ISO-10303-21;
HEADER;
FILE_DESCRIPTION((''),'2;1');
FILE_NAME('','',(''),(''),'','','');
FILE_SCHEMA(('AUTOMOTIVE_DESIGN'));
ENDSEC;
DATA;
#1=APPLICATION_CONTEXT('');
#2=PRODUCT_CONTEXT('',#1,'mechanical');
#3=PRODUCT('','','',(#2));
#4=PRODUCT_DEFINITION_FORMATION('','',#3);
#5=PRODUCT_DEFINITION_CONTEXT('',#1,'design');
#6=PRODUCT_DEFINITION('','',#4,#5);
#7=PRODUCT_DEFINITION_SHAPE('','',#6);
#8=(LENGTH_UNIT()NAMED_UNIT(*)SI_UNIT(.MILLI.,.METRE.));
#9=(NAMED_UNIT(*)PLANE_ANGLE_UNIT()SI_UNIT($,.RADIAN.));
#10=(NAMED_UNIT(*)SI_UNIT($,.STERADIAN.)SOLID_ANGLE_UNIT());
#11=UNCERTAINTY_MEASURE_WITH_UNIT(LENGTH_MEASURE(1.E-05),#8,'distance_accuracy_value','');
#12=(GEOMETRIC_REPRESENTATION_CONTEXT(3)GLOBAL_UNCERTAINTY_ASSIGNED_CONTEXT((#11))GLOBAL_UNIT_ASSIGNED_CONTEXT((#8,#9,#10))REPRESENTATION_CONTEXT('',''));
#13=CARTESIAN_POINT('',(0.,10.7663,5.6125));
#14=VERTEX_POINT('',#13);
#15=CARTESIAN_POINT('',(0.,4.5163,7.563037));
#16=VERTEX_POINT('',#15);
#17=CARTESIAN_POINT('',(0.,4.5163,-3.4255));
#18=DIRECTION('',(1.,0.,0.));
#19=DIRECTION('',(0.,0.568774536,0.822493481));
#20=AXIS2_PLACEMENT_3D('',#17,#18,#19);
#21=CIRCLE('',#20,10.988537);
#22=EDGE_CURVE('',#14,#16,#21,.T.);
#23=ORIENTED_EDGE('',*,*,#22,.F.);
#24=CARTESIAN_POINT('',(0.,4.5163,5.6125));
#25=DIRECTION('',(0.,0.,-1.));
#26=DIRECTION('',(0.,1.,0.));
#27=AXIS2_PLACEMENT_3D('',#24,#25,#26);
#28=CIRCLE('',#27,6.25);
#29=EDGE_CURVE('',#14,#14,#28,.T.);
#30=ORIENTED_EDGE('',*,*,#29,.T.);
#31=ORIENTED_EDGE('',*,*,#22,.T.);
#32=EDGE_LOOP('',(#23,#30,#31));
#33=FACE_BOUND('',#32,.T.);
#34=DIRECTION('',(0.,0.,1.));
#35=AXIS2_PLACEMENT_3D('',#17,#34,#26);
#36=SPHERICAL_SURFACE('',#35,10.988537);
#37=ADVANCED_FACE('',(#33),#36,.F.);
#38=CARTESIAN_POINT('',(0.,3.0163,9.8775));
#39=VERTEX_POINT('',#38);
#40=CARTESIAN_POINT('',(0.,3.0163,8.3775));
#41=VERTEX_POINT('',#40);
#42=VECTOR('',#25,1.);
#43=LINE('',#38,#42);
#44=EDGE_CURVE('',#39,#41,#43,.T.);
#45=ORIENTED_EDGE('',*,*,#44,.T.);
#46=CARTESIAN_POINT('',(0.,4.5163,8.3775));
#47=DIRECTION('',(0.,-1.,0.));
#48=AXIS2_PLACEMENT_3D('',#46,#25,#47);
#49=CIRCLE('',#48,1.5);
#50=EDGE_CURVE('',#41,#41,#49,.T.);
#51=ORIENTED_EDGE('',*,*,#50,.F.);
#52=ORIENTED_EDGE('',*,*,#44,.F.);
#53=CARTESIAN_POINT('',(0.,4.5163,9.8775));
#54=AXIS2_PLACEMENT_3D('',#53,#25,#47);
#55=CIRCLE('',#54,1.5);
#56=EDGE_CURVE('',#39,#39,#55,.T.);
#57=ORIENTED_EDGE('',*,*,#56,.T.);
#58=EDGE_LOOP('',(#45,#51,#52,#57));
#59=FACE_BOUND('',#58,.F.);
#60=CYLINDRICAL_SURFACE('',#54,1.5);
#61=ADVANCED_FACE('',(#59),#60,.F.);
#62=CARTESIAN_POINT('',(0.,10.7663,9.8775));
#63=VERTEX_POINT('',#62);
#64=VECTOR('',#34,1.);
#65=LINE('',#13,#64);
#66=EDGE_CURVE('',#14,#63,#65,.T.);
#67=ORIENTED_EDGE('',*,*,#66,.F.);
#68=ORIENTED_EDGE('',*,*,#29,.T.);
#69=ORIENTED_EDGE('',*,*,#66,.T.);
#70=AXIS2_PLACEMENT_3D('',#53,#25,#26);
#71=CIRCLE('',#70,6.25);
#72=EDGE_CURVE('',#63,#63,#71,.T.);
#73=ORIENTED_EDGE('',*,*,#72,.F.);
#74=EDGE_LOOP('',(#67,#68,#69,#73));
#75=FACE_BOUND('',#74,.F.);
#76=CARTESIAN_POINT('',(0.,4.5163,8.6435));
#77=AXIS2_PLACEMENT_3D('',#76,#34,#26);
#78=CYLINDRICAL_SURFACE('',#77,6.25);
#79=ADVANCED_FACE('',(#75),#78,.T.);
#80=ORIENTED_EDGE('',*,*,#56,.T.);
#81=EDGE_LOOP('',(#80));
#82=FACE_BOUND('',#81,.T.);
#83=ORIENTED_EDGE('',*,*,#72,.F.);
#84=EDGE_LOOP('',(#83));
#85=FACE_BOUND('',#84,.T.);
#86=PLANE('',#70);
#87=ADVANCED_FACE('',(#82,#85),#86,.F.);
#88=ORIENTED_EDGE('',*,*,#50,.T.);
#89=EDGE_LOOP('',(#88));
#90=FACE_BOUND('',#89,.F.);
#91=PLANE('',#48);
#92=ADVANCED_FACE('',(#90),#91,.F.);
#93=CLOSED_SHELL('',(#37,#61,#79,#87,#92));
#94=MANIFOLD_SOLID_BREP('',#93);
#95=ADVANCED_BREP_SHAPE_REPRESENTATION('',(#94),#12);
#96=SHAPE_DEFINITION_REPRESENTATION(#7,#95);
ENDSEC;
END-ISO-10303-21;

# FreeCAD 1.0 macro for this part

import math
import FreeCAD as App
import Part
import Sketcher

V = App.Vector

doc = App.newDocument("Part")
body = doc.addObject("PartDesign::Body", "Body")

# Sketch on YZ plane
sketch1 = body.newObject("Sketcher::SketchObject", "Sketch")
sketch1.AttachmentSupport = (doc.getObject("YZ_Plane"), [""])
sketch1.MapMode = "FlatFace"
sketch1.addGeometry([
    Part.LineSegment(V(10.8, 9.9, 0), V(4.5, 9.9, 0)),
    Part.LineSegment(V(4.5, 9.9, 0), V(4.5, 7.6, 0)),
    Part.ArcOfCircle(Part.Circle(V(4.5, -3.4, 0), V(0, 0, 1), 11), math.radians(55), math.radians(90)),
    Part.LineSegment(V(10.8, 5.6, 0), V(10.8, 9.9, 0)),
], False)
sketch1.addGeometry(Part.LineSegment(V(4.5, 9.9, 0), V(4.5, -3.4, 0)), True)  # axis
sketch1.addConstraint([
    Sketcher.Constraint("Coincident", 0, 2, 1, 1),
    Sketcher.Constraint("Coincident", 1, 2, 2, 2),
    Sketcher.Constraint("Coincident", 2, 1, 3, 1),
    Sketcher.Constraint("Coincident", 3, 2, 0, 1),
    Sketcher.Constraint("Horizontal", 0),
    Sketcher.Constraint("Vertical", 1),
    Sketcher.Constraint("Vertical", 3),
    Sketcher.Constraint("Vertical", 4),
    Sketcher.Constraint("Coincident", 4, 1, 0, 2),
    Sketcher.Constraint("Coincident", 4, 2, 2, 3),
    Sketcher.Constraint("DistanceX", 0, 2, 0, 1, 6.25),
    Sketcher.Constraint("Radius", 2, 10.9885),
    Sketcher.Constraint("DistanceY", 3, 1, 3, 2, 4.265),
    Sketcher.Constraint("DistanceY", -1, 1, 1, 2, 7.563),
    Sketcher.Constraint("DistanceX", -1, 1, 2, 3, 4.5163),
])
revolution = body.newObject("PartDesign::Revolution", "Revolution")
revolution.Profile = sketch1
revolution.ReferenceAxis = (sketch1, ["Axis0"])
revolution.Angle = 360

# Sketch on XY plane
sketch2 = body.newObject("Sketcher::SketchObject", "Sketch001")
sketch2.AttachmentSupport = (doc.getObject("XY_Plane"), [""])
sketch2.MapMode = "FlatFace"
sketch2.AttachmentOffset = App.Placement(V(0, 0, 9.8775), App.Rotation())
sketch2.addGeometry(Part.Circle(V(0, 4.5, 0), V(0, 0, 1), 1.5), False)
sketch2.addConstraint([
    Sketcher.Constraint("PointOnObject", 0, 3, -2),
    Sketcher.Constraint("Diameter", 0, 3.0),
    Sketcher.Constraint("DistanceY", -1, 1, 0, 3, 4.5163),
])
doc.recompute()
hole = body.newObject("PartDesign::Hole", "Hole")
hole.Profile = sketch2
hole.ThreadType = "None"
hole.Diameter = 3
hole.DepthType = "Dimension"
hole.Depth = 1.5
hole.DrillPoint = "Flat"

doc.recompute()
